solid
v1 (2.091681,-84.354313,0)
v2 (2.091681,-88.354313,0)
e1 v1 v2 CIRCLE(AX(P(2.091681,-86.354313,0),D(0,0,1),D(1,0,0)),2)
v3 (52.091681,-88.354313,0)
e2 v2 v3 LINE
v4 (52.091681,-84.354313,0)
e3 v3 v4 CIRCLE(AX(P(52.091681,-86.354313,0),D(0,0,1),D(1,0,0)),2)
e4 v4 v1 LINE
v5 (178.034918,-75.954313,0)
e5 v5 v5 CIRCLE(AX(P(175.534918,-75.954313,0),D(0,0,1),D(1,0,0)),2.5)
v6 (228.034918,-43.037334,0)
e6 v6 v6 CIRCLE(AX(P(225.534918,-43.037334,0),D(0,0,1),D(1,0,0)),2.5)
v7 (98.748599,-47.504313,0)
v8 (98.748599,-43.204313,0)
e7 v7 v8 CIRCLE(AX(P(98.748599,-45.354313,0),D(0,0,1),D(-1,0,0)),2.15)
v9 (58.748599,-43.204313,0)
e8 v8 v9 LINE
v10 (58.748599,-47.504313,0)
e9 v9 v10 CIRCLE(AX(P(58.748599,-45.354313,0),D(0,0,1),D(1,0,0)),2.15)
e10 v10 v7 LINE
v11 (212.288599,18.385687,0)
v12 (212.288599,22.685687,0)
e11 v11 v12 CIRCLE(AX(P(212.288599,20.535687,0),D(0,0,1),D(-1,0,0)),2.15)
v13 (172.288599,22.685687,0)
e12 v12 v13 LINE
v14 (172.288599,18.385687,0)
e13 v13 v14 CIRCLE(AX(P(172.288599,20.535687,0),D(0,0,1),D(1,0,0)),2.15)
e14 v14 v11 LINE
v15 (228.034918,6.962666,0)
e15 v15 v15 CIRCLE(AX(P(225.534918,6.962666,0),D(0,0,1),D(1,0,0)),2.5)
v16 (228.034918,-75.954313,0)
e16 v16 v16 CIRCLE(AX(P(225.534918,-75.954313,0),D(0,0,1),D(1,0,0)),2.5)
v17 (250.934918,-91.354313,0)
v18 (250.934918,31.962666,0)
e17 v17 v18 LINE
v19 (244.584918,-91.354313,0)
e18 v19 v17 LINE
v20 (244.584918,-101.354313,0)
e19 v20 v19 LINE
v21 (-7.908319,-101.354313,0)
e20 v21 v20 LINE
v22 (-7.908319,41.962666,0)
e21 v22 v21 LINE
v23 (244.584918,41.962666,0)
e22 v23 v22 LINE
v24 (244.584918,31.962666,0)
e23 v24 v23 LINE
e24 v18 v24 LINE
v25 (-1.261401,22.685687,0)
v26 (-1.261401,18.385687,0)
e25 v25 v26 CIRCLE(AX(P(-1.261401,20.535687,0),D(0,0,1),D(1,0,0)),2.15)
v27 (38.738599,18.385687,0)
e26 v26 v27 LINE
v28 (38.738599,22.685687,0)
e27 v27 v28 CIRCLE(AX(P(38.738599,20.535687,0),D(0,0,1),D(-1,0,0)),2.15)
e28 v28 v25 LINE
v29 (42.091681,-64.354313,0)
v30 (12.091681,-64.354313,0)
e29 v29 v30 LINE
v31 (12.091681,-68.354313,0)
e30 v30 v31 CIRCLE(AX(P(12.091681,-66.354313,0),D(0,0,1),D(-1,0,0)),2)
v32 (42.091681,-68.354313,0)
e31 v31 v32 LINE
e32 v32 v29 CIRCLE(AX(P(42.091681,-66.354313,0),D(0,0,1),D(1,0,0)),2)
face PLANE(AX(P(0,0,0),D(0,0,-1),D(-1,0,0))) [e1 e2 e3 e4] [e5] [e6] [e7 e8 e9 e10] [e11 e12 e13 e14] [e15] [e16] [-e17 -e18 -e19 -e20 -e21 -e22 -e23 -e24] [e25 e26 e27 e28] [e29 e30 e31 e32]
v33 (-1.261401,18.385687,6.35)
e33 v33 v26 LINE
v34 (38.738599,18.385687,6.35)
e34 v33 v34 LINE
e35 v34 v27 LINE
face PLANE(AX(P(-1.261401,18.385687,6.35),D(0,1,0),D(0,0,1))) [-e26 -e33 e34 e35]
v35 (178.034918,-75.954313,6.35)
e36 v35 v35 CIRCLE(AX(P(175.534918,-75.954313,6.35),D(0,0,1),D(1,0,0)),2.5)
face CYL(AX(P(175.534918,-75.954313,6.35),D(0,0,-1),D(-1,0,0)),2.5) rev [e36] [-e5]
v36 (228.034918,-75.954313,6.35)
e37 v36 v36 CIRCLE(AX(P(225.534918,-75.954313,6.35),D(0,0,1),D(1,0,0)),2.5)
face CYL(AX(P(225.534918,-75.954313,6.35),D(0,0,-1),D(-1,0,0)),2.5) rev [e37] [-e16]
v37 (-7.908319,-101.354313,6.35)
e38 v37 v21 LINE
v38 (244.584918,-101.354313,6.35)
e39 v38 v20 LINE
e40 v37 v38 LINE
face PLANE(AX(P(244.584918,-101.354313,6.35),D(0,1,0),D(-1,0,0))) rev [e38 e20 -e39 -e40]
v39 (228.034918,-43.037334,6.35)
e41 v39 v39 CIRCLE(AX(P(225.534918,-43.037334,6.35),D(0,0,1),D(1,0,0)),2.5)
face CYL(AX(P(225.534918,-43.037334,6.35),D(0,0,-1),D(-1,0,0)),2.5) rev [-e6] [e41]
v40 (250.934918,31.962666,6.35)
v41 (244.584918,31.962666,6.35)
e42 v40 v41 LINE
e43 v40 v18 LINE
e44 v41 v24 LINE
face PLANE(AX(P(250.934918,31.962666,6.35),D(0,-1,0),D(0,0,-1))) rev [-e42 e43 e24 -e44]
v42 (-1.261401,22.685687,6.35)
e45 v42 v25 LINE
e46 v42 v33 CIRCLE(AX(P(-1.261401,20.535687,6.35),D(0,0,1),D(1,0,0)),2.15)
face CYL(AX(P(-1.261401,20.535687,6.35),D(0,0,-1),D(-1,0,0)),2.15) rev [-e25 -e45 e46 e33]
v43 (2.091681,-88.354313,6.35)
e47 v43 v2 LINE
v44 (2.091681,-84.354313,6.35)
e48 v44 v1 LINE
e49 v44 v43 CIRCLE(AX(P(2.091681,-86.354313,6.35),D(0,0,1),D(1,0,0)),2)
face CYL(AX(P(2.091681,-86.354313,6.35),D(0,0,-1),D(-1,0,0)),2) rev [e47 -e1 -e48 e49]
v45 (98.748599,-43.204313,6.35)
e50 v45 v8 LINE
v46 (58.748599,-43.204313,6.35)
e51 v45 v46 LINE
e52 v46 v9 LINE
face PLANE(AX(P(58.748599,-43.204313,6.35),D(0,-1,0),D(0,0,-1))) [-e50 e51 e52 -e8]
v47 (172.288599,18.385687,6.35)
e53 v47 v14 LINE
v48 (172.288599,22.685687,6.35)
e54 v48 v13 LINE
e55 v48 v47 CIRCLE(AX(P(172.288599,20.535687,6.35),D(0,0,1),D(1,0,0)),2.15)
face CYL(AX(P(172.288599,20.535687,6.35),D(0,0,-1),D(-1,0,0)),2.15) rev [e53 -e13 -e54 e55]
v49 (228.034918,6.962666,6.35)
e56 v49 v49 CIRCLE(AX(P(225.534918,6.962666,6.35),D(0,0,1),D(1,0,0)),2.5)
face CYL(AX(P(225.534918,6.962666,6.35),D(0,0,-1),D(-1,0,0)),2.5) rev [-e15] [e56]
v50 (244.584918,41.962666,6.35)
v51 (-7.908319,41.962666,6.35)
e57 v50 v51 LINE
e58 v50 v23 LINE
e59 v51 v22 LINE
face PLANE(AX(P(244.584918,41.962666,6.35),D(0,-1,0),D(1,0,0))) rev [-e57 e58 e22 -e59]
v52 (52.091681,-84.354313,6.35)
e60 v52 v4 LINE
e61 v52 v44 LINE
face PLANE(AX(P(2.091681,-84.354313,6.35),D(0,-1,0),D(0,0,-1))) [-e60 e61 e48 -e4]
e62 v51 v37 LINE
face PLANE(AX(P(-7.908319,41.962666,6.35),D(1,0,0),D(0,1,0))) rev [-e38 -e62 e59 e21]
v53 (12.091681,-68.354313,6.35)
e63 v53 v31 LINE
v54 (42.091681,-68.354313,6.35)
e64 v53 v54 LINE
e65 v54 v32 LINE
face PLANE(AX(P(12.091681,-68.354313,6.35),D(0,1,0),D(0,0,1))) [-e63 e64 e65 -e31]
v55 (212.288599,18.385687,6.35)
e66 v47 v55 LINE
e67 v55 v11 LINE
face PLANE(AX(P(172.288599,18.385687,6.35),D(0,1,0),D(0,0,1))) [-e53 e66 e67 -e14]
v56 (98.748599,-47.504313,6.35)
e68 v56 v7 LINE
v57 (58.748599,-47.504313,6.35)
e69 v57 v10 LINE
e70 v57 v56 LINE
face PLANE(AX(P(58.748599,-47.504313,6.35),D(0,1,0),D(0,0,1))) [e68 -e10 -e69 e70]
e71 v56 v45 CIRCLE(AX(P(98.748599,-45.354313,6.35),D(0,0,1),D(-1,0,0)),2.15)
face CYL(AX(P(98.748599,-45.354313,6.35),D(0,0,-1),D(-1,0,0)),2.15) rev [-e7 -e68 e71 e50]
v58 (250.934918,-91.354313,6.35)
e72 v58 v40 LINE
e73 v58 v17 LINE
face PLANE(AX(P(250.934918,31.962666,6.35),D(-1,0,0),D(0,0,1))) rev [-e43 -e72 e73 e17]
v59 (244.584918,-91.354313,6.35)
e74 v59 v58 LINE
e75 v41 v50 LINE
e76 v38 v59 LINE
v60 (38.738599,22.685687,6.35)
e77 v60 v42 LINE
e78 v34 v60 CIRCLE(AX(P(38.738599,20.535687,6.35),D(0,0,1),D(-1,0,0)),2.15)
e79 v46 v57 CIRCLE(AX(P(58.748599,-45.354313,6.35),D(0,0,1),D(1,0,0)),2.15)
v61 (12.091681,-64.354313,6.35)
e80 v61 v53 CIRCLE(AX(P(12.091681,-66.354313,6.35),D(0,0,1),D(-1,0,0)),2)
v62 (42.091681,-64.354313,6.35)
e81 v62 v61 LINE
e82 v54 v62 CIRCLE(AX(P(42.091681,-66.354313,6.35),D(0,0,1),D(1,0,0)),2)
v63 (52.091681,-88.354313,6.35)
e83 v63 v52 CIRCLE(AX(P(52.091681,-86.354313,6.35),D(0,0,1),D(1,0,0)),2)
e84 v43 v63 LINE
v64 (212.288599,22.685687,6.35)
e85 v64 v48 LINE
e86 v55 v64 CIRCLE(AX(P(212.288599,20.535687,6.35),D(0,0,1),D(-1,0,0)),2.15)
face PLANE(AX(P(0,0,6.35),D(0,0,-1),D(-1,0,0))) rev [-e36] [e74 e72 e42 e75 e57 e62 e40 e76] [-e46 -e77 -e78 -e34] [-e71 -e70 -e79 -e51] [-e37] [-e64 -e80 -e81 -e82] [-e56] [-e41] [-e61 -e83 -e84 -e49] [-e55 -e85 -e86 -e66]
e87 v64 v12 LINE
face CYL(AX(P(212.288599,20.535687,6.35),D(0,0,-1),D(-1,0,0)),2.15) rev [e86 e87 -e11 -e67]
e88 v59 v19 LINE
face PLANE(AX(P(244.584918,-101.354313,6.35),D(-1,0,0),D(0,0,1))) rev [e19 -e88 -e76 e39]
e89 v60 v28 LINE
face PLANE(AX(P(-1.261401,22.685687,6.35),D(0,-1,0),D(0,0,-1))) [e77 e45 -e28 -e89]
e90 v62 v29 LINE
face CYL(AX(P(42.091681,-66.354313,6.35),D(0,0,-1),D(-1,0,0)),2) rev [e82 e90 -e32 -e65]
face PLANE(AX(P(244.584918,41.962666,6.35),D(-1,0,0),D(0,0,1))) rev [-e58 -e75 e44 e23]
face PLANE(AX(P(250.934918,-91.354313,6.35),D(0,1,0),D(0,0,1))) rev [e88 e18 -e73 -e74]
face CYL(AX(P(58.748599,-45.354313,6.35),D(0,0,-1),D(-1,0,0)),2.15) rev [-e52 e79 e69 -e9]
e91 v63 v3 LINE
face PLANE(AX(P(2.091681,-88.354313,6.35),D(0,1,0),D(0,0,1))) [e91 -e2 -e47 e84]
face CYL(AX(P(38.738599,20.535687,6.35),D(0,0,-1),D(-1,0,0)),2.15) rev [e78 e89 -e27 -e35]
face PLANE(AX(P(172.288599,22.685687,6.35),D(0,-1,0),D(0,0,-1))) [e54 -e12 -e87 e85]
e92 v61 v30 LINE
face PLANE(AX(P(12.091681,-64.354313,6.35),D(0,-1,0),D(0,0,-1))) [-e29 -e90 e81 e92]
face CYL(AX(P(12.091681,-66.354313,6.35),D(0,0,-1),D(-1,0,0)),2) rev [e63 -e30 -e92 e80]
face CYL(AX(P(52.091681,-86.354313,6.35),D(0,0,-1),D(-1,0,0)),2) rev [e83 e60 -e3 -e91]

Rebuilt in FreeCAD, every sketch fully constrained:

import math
import FreeCAD as App
import Part
import Sketcher
from FreeCAD import Vector
Q = App.Units.Quantity

doc = App.newDocument("Part")
body = doc.addObject("PartDesign::Body", "Body")

sketch1 = body.newObject("Sketcher::SketchObject", "Sketch")
sketch1.AttachmentSupport = (doc.getObject("XY_Plane"), [""])
sketch1.MapMode = "FlatFace"
sketch1.addGeometry([
    Part.LineSegment(Vector(244.6, 42, 0), Vector(-7.9, 42, 0)),
    Part.LineSegment(Vector(-7.9, 42, 0), Vector(-7.9, -101.4, 0)),
    Part.LineSegment(Vector(-7.9, -101.4, 0), Vector(244.6, -101.4, 0)),
    Part.LineSegment(Vector(244.6, -101.4, 0), Vector(244.6, -91.4, 0)),
    Part.LineSegment(Vector(244.6, -91.4, 0), Vector(250.9, -91.4, 0)),
    Part.LineSegment(Vector(250.9, -91.4, 0), Vector(250.9, 32, 0)),
    Part.LineSegment(Vector(250.9, 32, 0), Vector(244.6, 32, 0)),
    Part.LineSegment(Vector(244.6, 32, 0), Vector(244.6, 42, 0)),
    Part.ArcOfCircle(Part.Circle(Vector(2.1, -86.4, 0), Vector(0, 0, 1), 2), math.radians(90), math.radians(270)),
    Part.LineSegment(Vector(2.1, -84.4, 0), Vector(52.1, -84.4, 0)),
    Part.ArcOfCircle(Part.Circle(Vector(52.1, -86.4, 0), Vector(0, 0, 1), 2), math.radians(-90), math.radians(90)),
    Part.LineSegment(Vector(52.1, -88.4, 0), Vector(2.1, -88.4, 0)),
    Part.ArcOfCircle(Part.Circle(Vector(12.1, -66.4, 0), Vector(0, 0, 1), 2), math.radians(90), math.radians(270)),
    Part.LineSegment(Vector(12.1, -64.4, 0), Vector(42.1, -64.4, 0)),
    Part.ArcOfCircle(Part.Circle(Vector(42.1, -66.4, 0), Vector(0, 0, 1), 2), math.radians(-90), math.radians(90)),
    Part.LineSegment(Vector(42.1, -68.4, 0), Vector(12.1, -68.4, 0)),
    Part.ArcOfCircle(Part.Circle(Vector(58.7, -45.4, 0), Vector(0, 0, 1), 2.1), math.radians(90), math.radians(270)),
    Part.LineSegment(Vector(58.7, -43.2, 0), Vector(98.7, -43.2, 0)),
    Part.ArcOfCircle(Part.Circle(Vector(98.7, -45.4, 0), Vector(0, 0, 1), 2.1), math.radians(-90), math.radians(90)),
    Part.LineSegment(Vector(98.7, -47.5, 0), Vector(58.7, -47.5, 0)),
    Part.Circle(Vector(175.5, -76, 0), Vector(0, 0, 1), 2.5),
    Part.Circle(Vector(225.5, -76, 0), Vector(0, 0, 1), 2.5),
    Part.Circle(Vector(225.5, -43, 0), Vector(0, 0, 1), 2.5),
    Part.ArcOfCircle(Part.Circle(Vector(-1.3, 20.5, 0), Vector(0, 0, 1), 2.1), math.radians(90), math.radians(270)),
    Part.LineSegment(Vector(-1.3, 22.7, 0), Vector(38.7, 22.7, 0)),
    Part.ArcOfCircle(Part.Circle(Vector(38.7, 20.5, 0), Vector(0, 0, 1), 2.1), math.radians(-90), math.radians(90)),
    Part.LineSegment(Vector(38.7, 18.4, 0), Vector(-1.3, 18.4, 0)),
    Part.Circle(Vector(225.5, 7, 0), Vector(0, 0, 1), 2.5),
    Part.ArcOfCircle(Part.Circle(Vector(172.3, 20.5, 0), Vector(0, 0, 1), 2.1), math.radians(90), math.radians(270)),
    Part.LineSegment(Vector(172.3, 22.7, 0), Vector(212.3, 22.7, 0)),
    Part.ArcOfCircle(Part.Circle(Vector(212.3, 20.5, 0), Vector(0, 0, 1), 2.1), math.radians(-90), math.radians(90)),
    Part.LineSegment(Vector(212.3, 18.4, 0), Vector(172.3, 18.4, 0)),
], False)
sketch1.addConstraint([
    Sketcher.Constraint("Coincident", 0, 2, 1, 1),
    Sketcher.Constraint("Coincident", 1, 2, 2, 1),
    Sketcher.Constraint("Coincident", 2, 2, 3, 1),
    Sketcher.Constraint("Coincident", 3, 2, 4, 1),
    Sketcher.Constraint("Coincident", 4, 2, 5, 1),
    Sketcher.Constraint("Coincident", 5, 2, 6, 1),
    Sketcher.Constraint("Coincident", 6, 2, 7, 1),
    Sketcher.Constraint("Coincident", 7, 2, 0, 1),
    Sketcher.Constraint("Tangent", 8, 1, 9, 1),
    Sketcher.Constraint("Tangent", 9, 2, 10, 2),
    Sketcher.Constraint("Tangent", 10, 1, 11, 1),
    Sketcher.Constraint("Tangent", 11, 2, 8, 2),
    Sketcher.Constraint("Tangent", 12, 1, 13, 1),
    Sketcher.Constraint("Tangent", 13, 2, 14, 2),
    Sketcher.Constraint("Tangent", 14, 1, 15, 1),
    Sketcher.Constraint("Tangent", 15, 2, 12, 2),
    Sketcher.Constraint("Tangent", 16, 1, 17, 1),
    Sketcher.Constraint("Tangent", 17, 2, 18, 2),
    Sketcher.Constraint("Tangent", 18, 1, 19, 1),
    Sketcher.Constraint("Tangent", 19, 2, 16, 2),
    Sketcher.Constraint("Tangent", 23, 1, 24, 1),
    Sketcher.Constraint("Tangent", 24, 2, 25, 2),
    Sketcher.Constraint("Tangent", 25, 1, 26, 1),
    Sketcher.Constraint("Tangent", 26, 2, 23, 2),
    Sketcher.Constraint("Tangent", 28, 1, 29, 1),
    Sketcher.Constraint("Tangent", 29, 2, 30, 2),
    Sketcher.Constraint("Tangent", 30, 1, 31, 1),
    Sketcher.Constraint("Tangent", 31, 2, 28, 2),
    Sketcher.Constraint("Horizontal", 0),
    Sketcher.Constraint("Vertical", 1),
    Sketcher.Constraint("Horizontal", 2),
    Sketcher.Constraint("Vertical", 3),
    Sketcher.Constraint("Horizontal", 4),
    Sketcher.Constraint("Vertical", 5),
    Sketcher.Constraint("Horizontal", 6),
    Sketcher.Constraint("Vertical", 7),
    Sketcher.Constraint("Horizontal", 9),
    Sketcher.Constraint("Horizontal", 11),
    Sketcher.Constraint("Horizontal", 13),
    Sketcher.Constraint("Horizontal", 15),
    Sketcher.Constraint("Horizontal", 17),
    Sketcher.Constraint("Horizontal", 19),
    Sketcher.Constraint("Horizontal", 24),
    Sketcher.Constraint("Horizontal", 26),
    Sketcher.Constraint("Horizontal", 29),
    Sketcher.Constraint("Horizontal", 31),
    Sketcher.Constraint("Equal", 10, 12),
    Sketcher.Constraint("Equal", 20, 21),
    Sketcher.Constraint("Equal", 21, 22),
    Sketcher.Constraint("Equal", 18, 23),
    Sketcher.Constraint("Equal", 22, 27),
    Sketcher.Constraint("Equal", 25, 28),
    Sketcher.Constraint("Horizontal", 20, 3, 21, 3),
    Sketcher.Constraint("Horizontal", 25, 3, 28, 3),
    Sketcher.Constraint("Vertical", 21, 3, 22, 3),
    Sketcher.Constraint("Vertical", 22, 3, 27, 3),
    Sketcher.Constraint("Vertical", 3, 2, 6, 2),
    Sketcher.Constraint("Equal", 19, 24),
    Sketcher.Constraint("Equal", 26, 29),
    Sketcher.Constraint("Equal", 3, 7),
    Sketcher.Constraint("Diameter", 20, Q("5 mm")),
    Sketcher.Constraint("Radius", 8, Q("2 mm")),
    Sketcher.Constraint("DistanceX", 9, 1, 9, 2, Q("50 mm")),
    Sketcher.Constraint("DistanceX", 13, 1, 13, 2, Q("30 mm")),
    Sketcher.Constraint("DistanceX", 17, 1, 17, 2, Q("40 mm")),
    Sketcher.Constraint("DistanceY", 3, 1, 3, 2, Q("10 mm")),
    Sketcher.Constraint("Radius", 16, Q("2.15 mm")),
    Sketcher.Constraint("DistanceX", 8, 3, 12, 3, Q("10 mm")),
    Sketcher.Constraint("DistanceY", 8, 3, 12, 3, Q("20 mm")),
    Sketcher.Constraint("DistanceY", 14, 3, 16, 3, Q("21 mm")),
    Sketcher.Constraint("DistanceX", 20, 3, 21, 3, Q("50 mm")),
    Sketcher.Constraint("DistanceY", 22, 3, 27, 3, Q("50 mm")),
    Sketcher.Constraint("DistanceX", 0, 2, 12, 3, Q("20 mm")),
    Sketcher.Constraint("DistanceY", 1, 2, 8, 3, Q("15 mm")),
    Sketcher.Constraint("DistanceY", 27, 3, 5, 2, Q("25 mm")),
    Sketcher.Constraint("DistanceX", 4, 1, 4, 2, Q("6.35 mm")),
    Sketcher.Constraint("DistanceY", 20, 3, 18, 3, Q("30.6 mm")),
    Sketcher.Constraint("DistanceX", 21, 3, 4, 2, Q("25.4 mm")),
    Sketcher.Constraint("DistanceY", 12, 3, 23, 3, Q("86.89 mm")),
    Sketcher.Constraint("DistanceX", 23, 3, 16, 3, Q("60.01 mm")),
    Sketcher.Constraint("DistanceX", 18, 3, 28, 3, Q("73.54 mm")),
    Sketcher.Constraint("DistanceY", 1, 2, 1, 1, Q("143.316979 mm")),
    Sketcher.Constraint("DistanceX", -1, 1, 16, 3, Q("58.748599 mm")),
    Sketcher.Constraint("DistanceX", 0, 2, 0, 1, Q("252.493236 mm")),
    Sketcher.Constraint("DistanceX", -1, 1, 8, 3, Q("2.091681 mm")),
    Sketcher.Constraint("DistanceY", 8, 3, -1, 1, Q("86.354313 mm")),
])
pad1 = body.newObject("PartDesign::Pad", "Pad")
pad1.Profile = sketch1
pad1.Length = 6.35

doc.recompute()
